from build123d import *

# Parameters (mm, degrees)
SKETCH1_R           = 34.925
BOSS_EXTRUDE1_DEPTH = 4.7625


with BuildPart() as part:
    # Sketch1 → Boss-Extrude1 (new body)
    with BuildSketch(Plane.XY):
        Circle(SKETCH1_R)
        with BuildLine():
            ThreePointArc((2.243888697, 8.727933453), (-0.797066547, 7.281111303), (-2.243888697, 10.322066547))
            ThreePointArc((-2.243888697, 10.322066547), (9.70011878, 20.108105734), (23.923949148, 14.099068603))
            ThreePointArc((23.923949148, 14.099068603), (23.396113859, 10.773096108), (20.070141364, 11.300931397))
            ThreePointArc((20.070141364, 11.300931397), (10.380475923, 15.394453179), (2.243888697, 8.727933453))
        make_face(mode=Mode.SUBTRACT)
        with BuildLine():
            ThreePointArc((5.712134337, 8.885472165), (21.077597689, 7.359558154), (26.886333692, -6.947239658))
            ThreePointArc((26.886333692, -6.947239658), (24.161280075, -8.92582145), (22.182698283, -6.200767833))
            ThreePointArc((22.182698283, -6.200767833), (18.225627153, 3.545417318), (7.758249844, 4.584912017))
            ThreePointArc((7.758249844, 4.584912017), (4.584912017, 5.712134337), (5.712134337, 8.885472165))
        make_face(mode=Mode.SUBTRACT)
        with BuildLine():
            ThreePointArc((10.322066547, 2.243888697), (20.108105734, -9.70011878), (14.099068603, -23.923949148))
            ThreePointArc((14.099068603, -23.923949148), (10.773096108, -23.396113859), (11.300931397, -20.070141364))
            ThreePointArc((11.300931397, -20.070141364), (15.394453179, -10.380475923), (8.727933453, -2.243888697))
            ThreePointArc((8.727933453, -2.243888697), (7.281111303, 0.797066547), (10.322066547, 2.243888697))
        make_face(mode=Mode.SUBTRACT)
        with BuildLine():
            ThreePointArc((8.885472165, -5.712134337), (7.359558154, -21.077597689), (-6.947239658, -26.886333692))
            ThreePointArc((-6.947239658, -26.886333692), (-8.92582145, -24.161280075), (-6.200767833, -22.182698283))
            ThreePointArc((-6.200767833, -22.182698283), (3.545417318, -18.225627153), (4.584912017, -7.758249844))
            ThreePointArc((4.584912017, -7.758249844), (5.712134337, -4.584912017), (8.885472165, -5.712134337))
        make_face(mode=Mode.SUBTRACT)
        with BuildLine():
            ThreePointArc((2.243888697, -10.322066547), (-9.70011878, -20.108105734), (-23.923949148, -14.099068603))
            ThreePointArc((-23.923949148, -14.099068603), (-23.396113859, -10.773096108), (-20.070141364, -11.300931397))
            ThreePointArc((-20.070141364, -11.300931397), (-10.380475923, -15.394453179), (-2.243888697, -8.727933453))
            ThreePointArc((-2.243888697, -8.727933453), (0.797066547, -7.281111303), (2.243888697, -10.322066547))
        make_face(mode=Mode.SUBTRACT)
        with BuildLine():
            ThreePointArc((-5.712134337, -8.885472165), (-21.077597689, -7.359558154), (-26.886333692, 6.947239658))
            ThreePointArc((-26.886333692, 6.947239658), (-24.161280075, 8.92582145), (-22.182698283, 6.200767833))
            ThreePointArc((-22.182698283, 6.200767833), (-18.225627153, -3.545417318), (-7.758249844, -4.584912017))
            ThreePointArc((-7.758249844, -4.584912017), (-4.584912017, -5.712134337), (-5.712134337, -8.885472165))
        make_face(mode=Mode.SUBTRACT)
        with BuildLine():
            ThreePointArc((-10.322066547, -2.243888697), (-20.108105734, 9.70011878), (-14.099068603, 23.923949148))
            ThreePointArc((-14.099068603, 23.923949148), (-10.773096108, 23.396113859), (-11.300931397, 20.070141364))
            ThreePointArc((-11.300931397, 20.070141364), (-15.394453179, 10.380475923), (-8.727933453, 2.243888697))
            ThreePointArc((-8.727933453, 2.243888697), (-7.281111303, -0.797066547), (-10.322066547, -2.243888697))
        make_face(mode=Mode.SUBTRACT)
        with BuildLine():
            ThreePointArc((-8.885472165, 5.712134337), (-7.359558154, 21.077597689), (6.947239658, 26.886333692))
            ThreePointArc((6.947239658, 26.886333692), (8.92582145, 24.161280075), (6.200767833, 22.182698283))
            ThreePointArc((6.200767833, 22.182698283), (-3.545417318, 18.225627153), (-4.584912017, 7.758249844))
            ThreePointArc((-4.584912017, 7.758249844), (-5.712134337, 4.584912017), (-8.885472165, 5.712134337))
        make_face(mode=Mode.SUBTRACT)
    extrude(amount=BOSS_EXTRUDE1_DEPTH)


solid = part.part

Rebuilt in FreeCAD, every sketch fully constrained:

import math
import FreeCAD as App
import Part
import Sketcher
Q = App.Units.Quantity

doc = App.newDocument("Part")
params = doc.addObject("Spreadsheet::Sheet", "Params")
for row, (alias, value) in enumerate([
    ("sketch1_diameter", "2.75 in"),
    ("sketch1_radius", "0.09375 in"),
    ("pad1_length", "0.1875 in"),
], start=1):
    params.set(f"A{row}", alias)
    params.set(f"B{row}", "=" + value)
    params.setAlias(f"B{row}", alias)

body = doc.addObject("PartDesign::Body", "Body")

sketch1 = body.newObject("Sketcher::SketchObject", "Sketch")
sketch1.AttachmentSupport = (doc.getObject("XY_Plane"), [""])
sketch1.MapMode = "FlatFace"
sketch1.addGeometry(Part.Circle(App.Vector(0, 0, 0), App.Vector(0, 0, 1), 34.9), False)
sketch1.addGeometry(Part.ArcOfCircle(Part.Circle(App.Vector(0, -9.5, 0), App.Vector(0, 0, 1), 2.4), math.radians(-20), math.radians(160)), False)
sketch1.addGeometry(Part.ArcOfCircle(Part.Circle(App.Vector(-11.8, -5.3, 0), App.Vector(0, 0, 1), 14.9), math.radians(-144), math.radians(-20)), False)
sketch1.addGeometry(Part.ArcOfCircle(Part.Circle(App.Vector(-22, -12.7, 0), App.Vector(0, 0, 1), 2.4), math.radians(36), math.radians(216)), False)
sketch1.addGeometry(Part.ArcOfCircle(Part.Circle(App.Vector(-11.8, -5.3, 0), App.Vector(0, 0, 1), 10.2), math.radians(-144), math.radians(-20)), False)
sketch1.addGeometry(Part.ArcOfCircle(Part.Circle(App.Vector(-6.7, -6.7, 0), App.Vector(0, 0, 1), 2.4), math.radians(-65), math.radians(115)), False)
sketch1.addGeometry(Part.ArcOfCircle(Part.Circle(App.Vector(-12.1, 4.6, 0), App.Vector(0, 0, 1), 14.9), math.radians(171), math.radians(295)), False)
sketch1.addGeometry(Part.ArcOfCircle(Part.Circle(App.Vector(-24.5, 6.6, 0), App.Vector(0, 0, 1), 2.4), math.radians(-9), math.radians(171)), False)
sketch1.addGeometry(Part.ArcOfCircle(Part.Circle(App.Vector(-12.1, 4.6, 0), App.Vector(0, 0, 1), 10.2), math.radians(171), math.radians(295)), False)
sketch1.addGeometry(Part.ArcOfCircle(Part.Circle(App.Vector(6.7, -6.7, 0), App.Vector(0, 0, 1), 2.4), math.radians(25), math.radians(205)), False)
sketch1.addGeometry(Part.ArcOfCircle(Part.Circle(App.Vector(-4.6, -12.1, 0), App.Vector(0, 0, 1), 14.9), math.radians(-99), math.radians(25)), False)
sketch1.addGeometry(Part.ArcOfCircle(Part.Circle(App.Vector(-6.6, -24.5, 0), App.Vector(0, 0, 1), 2.4), math.radians(81), math.radians(261)), False)
sketch1.addGeometry(Part.ArcOfCircle(Part.Circle(App.Vector(-4.6, -12.1, 0), App.Vector(0, 0, 1), 10.2), math.radians(-99), math.radians(25)), False)
sketch1.addGeometry(Part.ArcOfCircle(Part.Circle(App.Vector(9.5, 0, 0), App.Vector(0, 0, 1), 2.4), math.radians(70), math.radians(250)), False)
sketch1.addGeometry(Part.ArcOfCircle(Part.Circle(App.Vector(5.3, -11.8, 0), App.Vector(0, 0, 1), 14.9), math.radians(-54), math.radians(70)), False)
sketch1.addGeometry(Part.ArcOfCircle(Part.Circle(App.Vector(12.7, -22, 0), App.Vector(0, 0, 1), 2.4), math.radians(126), math.radians(306)), False)
sketch1.addGeometry(Part.ArcOfCircle(Part.Circle(App.Vector(5.3, -11.8, 0), App.Vector(0, 0, 1), 10.2), math.radians(-54), math.radians(70)), False)
sketch1.addGeometry(Part.ArcOfCircle(Part.Circle(App.Vector(-9.5, 0, 0), App.Vector(0, 0, 1), 2.4), math.radians(-110), math.radians(70)), False)
sketch1.addGeometry(Part.ArcOfCircle(Part.Circle(App.Vector(-5.3, 11.8, 0), App.Vector(0, 0, 1), 14.9), math.radians(126), math.radians(250)), False)
sketch1.addGeometry(Part.ArcOfCircle(Part.Circle(App.Vector(-12.7, 22, 0), App.Vector(0, 0, 1), 2.4), math.radians(-54), math.radians(126)), False)
sketch1.addGeometry(Part.ArcOfCircle(Part.Circle(App.Vector(-5.3, 11.8, 0), App.Vector(0, 0, 1), 10.2), math.radians(126), math.radians(250)), False)
sketch1.addGeometry(Part.ArcOfCircle(Part.Circle(App.Vector(-6.7, 6.7, 0), App.Vector(0, 0, 1), 2.4), math.radians(-155), math.radians(25)), False)
sketch1.addGeometry(Part.ArcOfCircle(Part.Circle(App.Vector(4.6, 12.1, 0), App.Vector(0, 0, 1), 14.9), math.radians(81), math.radians(205)), False)
sketch1.addGeometry(Part.ArcOfCircle(Part.Circle(App.Vector(6.6, 24.5, 0), App.Vector(0, 0, 1), 2.4), math.radians(-99), math.radians(81)), False)
sketch1.addGeometry(Part.ArcOfCircle(Part.Circle(App.Vector(4.6, 12.1, 0), App.Vector(0, 0, 1), 10.2), math.radians(81), math.radians(205)), False)
sketch1.addGeometry(Part.ArcOfCircle(Part.Circle(App.Vector(6.7, 6.7, 0), App.Vector(0, 0, 1), 2.4), math.radians(115), math.radians(295)), False)
sketch1.addGeometry(Part.ArcOfCircle(Part.Circle(App.Vector(12.1, -4.6, 0), App.Vector(0, 0, 1), 14.9), math.radians(-9), math.radians(115)), False)
sketch1.addGeometry(Part.ArcOfCircle(Part.Circle(App.Vector(24.5, -6.6, 0), App.Vector(0, 0, 1), 2.4), math.radians(171), math.radians(351)), False)
sketch1.addGeometry(Part.ArcOfCircle(Part.Circle(App.Vector(12.1, -4.6, 0), App.Vector(0, 0, 1), 10.2), math.radians(-9), math.radians(115)), False)
sketch1.addGeometry(Part.ArcOfCircle(Part.Circle(App.Vector(11.8, 5.3, 0), App.Vector(0, 0, 1), 10.2), math.radians(36), math.radians(160)), False)
sketch1.addGeometry(Part.ArcOfCircle(Part.Circle(App.Vector(0, 9.5, 0), App.Vector(0, 0, 1), 2.4), math.radians(160), math.radians(340)), False)
sketch1.addGeometry(Part.ArcOfCircle(Part.Circle(App.Vector(11.8, 5.3, 0), App.Vector(0, 0, 1), 14.9), math.radians(36), math.radians(160)), False)
sketch1.addGeometry(Part.ArcOfCircle(Part.Circle(App.Vector(22, 12.7, 0), App.Vector(0, 0, 1), 2.4), math.radians(-144), math.radians(36)), False)
sketch1.addConstraint(Sketcher.Constraint("Tangent", 1, 1, 2, 2))
sketch1.addConstraint(Sketcher.Constraint("Tangent", 2, 1, 3, 2))
sketch1.addConstraint(Sketcher.Constraint("Tangent", 3, 1, 4, 1))
sketch1.addConstraint(Sketcher.Constraint("Tangent", 4, 2, 1, 2))
sketch1.addConstraint(Sketcher.Constraint("Tangent", 5, 1, 6, 2))
sketch1.addConstraint(Sketcher.Constraint("Tangent", 6, 1, 7, 2))
sketch1.addConstraint(Sketcher.Constraint("Tangent", 7, 1, 8, 1))
sketch1.addConstraint(Sketcher.Constraint("Tangent", 8, 2, 5, 2))
sketch1.addConstraint(Sketcher.Constraint("Tangent", 9, 1, 10, 2))
sketch1.addConstraint(Sketcher.Constraint("Tangent", 10, 1, 11, 2))
sketch1.addConstraint(Sketcher.Constraint("Tangent", 11, 1, 12, 1))
sketch1.addConstraint(Sketcher.Constraint("Tangent", 12, 2, 9, 2))
sketch1.addConstraint(Sketcher.Constraint("Tangent", 13, 1, 14, 2))
sketch1.addConstraint(Sketcher.Constraint("Tangent", 14, 1, 15, 2))
sketch1.addConstraint(Sketcher.Constraint("Tangent", 15, 1, 16, 1))
sketch1.addConstraint(Sketcher.Constraint("Tangent", 16, 2, 13, 2))
sketch1.addConstraint(Sketcher.Constraint("Tangent", 17, 1, 18, 2))
sketch1.addConstraint(Sketcher.Constraint("Tangent", 18, 1, 19, 2))
sketch1.addConstraint(Sketcher.Constraint("Tangent", 19, 1, 20, 1))
sketch1.addConstraint(Sketcher.Constraint("Tangent", 20, 2, 17, 2))
sketch1.addConstraint(Sketcher.Constraint("Tangent", 21, 1, 22, 2))
sketch1.addConstraint(Sketcher.Constraint("Tangent", 22, 1, 23, 2))
sketch1.addConstraint(Sketcher.Constraint("Tangent", 23, 1, 24, 1))
sketch1.addConstraint(Sketcher.Constraint("Tangent", 24, 2, 21, 2))
sketch1.addConstraint(Sketcher.Constraint("Tangent", 25, 1, 26, 2))
sketch1.addConstraint(Sketcher.Constraint("Tangent", 26, 1, 27, 2))
sketch1.addConstraint(Sketcher.Constraint("Tangent", 27, 1, 28, 1))
sketch1.addConstraint(Sketcher.Constraint("Tangent", 28, 2, 25, 2))
sketch1.addConstraint(Sketcher.Constraint("Tangent", 29, 2, 30, 2))
sketch1.addConstraint(Sketcher.Constraint("Tangent", 30, 1, 31, 2))
sketch1.addConstraint(Sketcher.Constraint("Tangent", 31, 1, 32, 2))
sketch1.addConstraint(Sketcher.Constraint("Tangent", 32, 1, 29, 1))
sketch1.addConstraint(Sketcher.Constraint("Coincident", 0, 3, -1, 1))
sketch1.addConstraint(Sketcher.Constraint("Coincident", 4, 3, 2, 3))
sketch1.addConstraint(Sketcher.Constraint("Coincident", 8, 3, 6, 3))
sketch1.addConstraint(Sketcher.Constraint("Coincident", 12, 3, 10, 3))
sketch1.addConstraint(Sketcher.Constraint("Coincident", 16, 3, 14, 3))
sketch1.addConstraint(Sketcher.Constraint("Coincident", 20, 3, 18, 3))
sketch1.addConstraint(Sketcher.Constraint("Coincident", 24, 3, 22, 3))
sketch1.addConstraint(Sketcher.Constraint("Coincident", 28, 3, 26, 3))
sketch1.addConstraint(Sketcher.Constraint("Coincident", 31, 3, 29, 3))
sketch1.addConstraint(Sketcher.Constraint("Equal", 3, 5))
sketch1.addConstraint(Sketcher.Constraint("Equal", 2, 6))
sketch1.addConstraint(Sketcher.Constraint("Equal", 7, 9))
sketch1.addConstraint(Sketcher.Constraint("Equal", 6, 10))
sketch1.addConstraint(Sketcher.Constraint("Equal", 11, 13))
sketch1.addConstraint(Sketcher.Constraint("Equal", 10, 14))
sketch1.addConstraint(Sketcher.Constraint("Equal", 15, 17))
sketch1.addConstraint(Sketcher.Constraint("Equal", 14, 18))
sketch1.addConstraint(Sketcher.Constraint("Equal", 19, 21))
sketch1.addConstraint(Sketcher.Constraint("Equal", 18, 22))
sketch1.addConstraint(Sketcher.Constraint("Equal", 23, 25))
sketch1.addConstraint(Sketcher.Constraint("Equal", 22, 26))
sketch1.addConstraint(Sketcher.Constraint("Equal", 28, 29))
sketch1.addConstraint(Sketcher.Constraint("Equal", 27, 30))
sketch1.addConstraint(Sketcher.Constraint("Symmetric", 13, 3, 17, 3, -1, 1))
sketch1.addConstraint(Sketcher.Constraint("Symmetric", 15, 3, 19, 3, -1, 1))
sketch1.addConstraint(Sketcher.Constraint("Symmetric", 9, 3, 21, 3, -1, 1))
sketch1.addConstraint(Sketcher.Constraint("Symmetric", 11, 3, 23, 3, -1, 1))
sketch1.addConstraint(Sketcher.Constraint("Symmetric", 5, 3, 25, 3, -1, 1))
sketch1.addConstraint(Sketcher.Constraint("Symmetric", 7, 3, 27, 3, -1, 1))
sketch1.addConstraint(Sketcher.Constraint("Symmetric", 2, 3, 29, 3, -1, 1))
sketch1.addConstraint(Sketcher.Constraint("Symmetric", 5, 3, 9, 3, -2))
sketch1.addConstraint(Sketcher.Constraint("Symmetric", 1, 3, 30, 3, -1))
sketch1.addConstraint(Sketcher.Constraint("PointOnObject", 13, 3, -1))
sketch1.addConstraint(Sketcher.Constraint("Diameter", 0, Q("2.75 in")))
sketch1.addConstraint(Sketcher.Constraint("Radius", 1, Q("0.09375 in")))
sketch1.addConstraint(Sketcher.Constraint("DistanceY", 3, 3, -1, 1, Q("0.5 in")))
sketch1.addConstraint(Sketcher.Constraint("DistanceX", -1, 1, 15, 3, Q("0.5 in")))
sketch1.addConstraint(Sketcher.Constraint("DistanceY", -1, 1, 32, 3, Q("0.5 in")))
sketch1.addConstraint(Sketcher.Constraint("DistanceY", 1, 3, -1, 1, Q("0.375 in")))
sketch1.addConstraint(Sketcher.Constraint("DistanceX", -1, 1, 13, 3, Q("0.375 in")))
sketch1.addConstraint(Sketcher.Constraint("Radius", 2, Q("14.940125 mm")))
sketch1.addConstraint(Sketcher.Constraint("DistanceX", 7, 1, -1, 1, Q("22.182698 mm")))
sketch1.addConstraint(Sketcher.Constraint("DistanceY", 11, 1, -1, 1, Q("22.182698 mm")))
sketch1.addConstraint(Sketcher.Constraint("DistanceX", 6, 3, -1, 1, Q("12.130869 mm")))
sketch1.addConstraint(Sketcher.Constraint("DistanceY", 10, 3, -1, 1, Q("12.130869 mm")))
sketch1.addConstraint(Sketcher.Constraint("DistanceX", -1, 1, 1, 1, Q("2.243889 mm")))
sketch1.addConstraint(Sketcher.Constraint("DistanceY", -1, 1, 6, 1, Q("6.94724 mm")))
sketch1.addConstraint(Sketcher.Constraint("DistanceX", 8, 2, -1, 1, Q("7.75825 mm")))
sketch1.addConstraint(Sketcher.Constraint("DistanceY", -1, 1, 13, 1, Q("2.243889 mm")))
sketch1.setExpression("Constraints[65]", "Params.sketch1_diameter")
sketch1.setExpression("Constraints[66]", "Params.sketch1_radius")
pad1 = body.newObject("PartDesign::Pad", "Pad")
pad1.Profile = sketch1
pad1.setExpression("Length", "Params.pad1_length")

doc.recompute()
